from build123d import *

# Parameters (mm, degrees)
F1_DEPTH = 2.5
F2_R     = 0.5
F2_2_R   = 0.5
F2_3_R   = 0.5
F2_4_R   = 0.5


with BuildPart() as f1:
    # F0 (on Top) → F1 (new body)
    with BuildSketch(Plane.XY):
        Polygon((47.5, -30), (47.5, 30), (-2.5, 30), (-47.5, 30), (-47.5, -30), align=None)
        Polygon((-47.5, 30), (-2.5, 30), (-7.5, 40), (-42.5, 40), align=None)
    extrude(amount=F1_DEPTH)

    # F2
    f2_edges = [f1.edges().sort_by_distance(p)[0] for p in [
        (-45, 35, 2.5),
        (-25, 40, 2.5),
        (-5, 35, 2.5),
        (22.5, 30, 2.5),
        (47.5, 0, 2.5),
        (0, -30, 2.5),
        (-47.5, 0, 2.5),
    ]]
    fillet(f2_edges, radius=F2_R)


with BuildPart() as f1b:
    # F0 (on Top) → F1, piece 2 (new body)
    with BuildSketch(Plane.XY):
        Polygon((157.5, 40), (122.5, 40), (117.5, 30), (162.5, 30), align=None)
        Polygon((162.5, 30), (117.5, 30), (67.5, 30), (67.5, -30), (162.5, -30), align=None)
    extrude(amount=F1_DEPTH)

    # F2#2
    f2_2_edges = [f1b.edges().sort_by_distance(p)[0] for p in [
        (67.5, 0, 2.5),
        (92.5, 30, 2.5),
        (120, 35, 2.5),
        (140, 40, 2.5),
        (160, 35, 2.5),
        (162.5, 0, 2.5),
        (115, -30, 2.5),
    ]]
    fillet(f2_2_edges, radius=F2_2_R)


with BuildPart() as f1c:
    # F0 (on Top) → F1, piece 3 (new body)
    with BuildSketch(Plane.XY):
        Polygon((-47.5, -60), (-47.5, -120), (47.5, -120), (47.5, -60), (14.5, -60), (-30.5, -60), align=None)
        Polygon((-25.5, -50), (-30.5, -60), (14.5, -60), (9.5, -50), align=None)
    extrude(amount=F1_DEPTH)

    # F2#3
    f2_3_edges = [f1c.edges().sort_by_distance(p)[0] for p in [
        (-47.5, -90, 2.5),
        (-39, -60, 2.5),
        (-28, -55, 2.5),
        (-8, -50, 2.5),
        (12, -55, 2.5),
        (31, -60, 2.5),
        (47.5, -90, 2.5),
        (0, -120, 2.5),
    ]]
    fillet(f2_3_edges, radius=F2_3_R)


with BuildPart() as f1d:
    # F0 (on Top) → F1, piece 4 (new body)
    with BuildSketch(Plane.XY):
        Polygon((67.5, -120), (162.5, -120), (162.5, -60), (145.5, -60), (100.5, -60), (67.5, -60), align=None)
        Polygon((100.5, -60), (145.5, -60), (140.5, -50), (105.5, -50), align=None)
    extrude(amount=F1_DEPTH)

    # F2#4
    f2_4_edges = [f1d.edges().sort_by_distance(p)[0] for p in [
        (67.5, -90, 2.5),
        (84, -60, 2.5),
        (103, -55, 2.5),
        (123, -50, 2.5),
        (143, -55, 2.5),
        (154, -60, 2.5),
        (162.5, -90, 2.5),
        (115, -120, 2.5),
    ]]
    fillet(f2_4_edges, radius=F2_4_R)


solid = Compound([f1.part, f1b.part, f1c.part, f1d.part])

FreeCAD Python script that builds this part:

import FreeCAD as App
import Part
import Sketcher
from FreeCAD import Vector
Q = App.Units.Quantity


def edges_at(feature, points):
    """Names of the edges that pass closest to the given points."""
    edges = feature.Shape.Edges
    near = lambda p: min(range(len(edges)), key=lambda i: edges[i].distToShape(Part.Vertex(*p))[0])
    return sorted({f"Edge{near(p) + 1}" for p in points})

doc = App.newDocument("Part")
body = doc.addObject("PartDesign::Body", "Body")

# Sketch on XY plane
sketch1 = doc.addObject("Sketcher::SketchObject", "Sketch")
body.addObject(sketch1)
sketch1.AttachmentSupport = (doc.XY_Plane, [""])
sketch1.MapMode = "FlatFace"
sketch1.addGeometry([
    Part.LineSegment(Vector(48, -30, 0), Vector(48, 30, 0)),  # 0
    Part.LineSegment(Vector(48, 30, 0), Vector(-2, 30, 0)),  # 1
    Part.LineSegment(Vector(-2, 30, 0), Vector(-8, 40, 0)),  # 2
    Part.LineSegment(Vector(-8, 40, 0), Vector(-42, 40, 0)),  # 3
    Part.LineSegment(Vector(-42, 40, 0), Vector(-48, 30, 0)),  # 4
    Part.LineSegment(Vector(-48, 30, 0), Vector(-48, -30, 0)),  # 5
    Part.LineSegment(Vector(-48, -30, 0), Vector(48, -30, 0)),  # 6
], False)
sketch1.addConstraint([
    Sketcher.Constraint("Coincident", 0, 2, 1, 1),
    Sketcher.Constraint("Coincident", 1, 2, 2, 1),
    Sketcher.Constraint("Coincident", 2, 2, 3, 1),
    Sketcher.Constraint("Coincident", 3, 2, 4, 1),
    Sketcher.Constraint("Coincident", 4, 2, 5, 1),
    Sketcher.Constraint("Coincident", 5, 2, 6, 1),
    Sketcher.Constraint("Coincident", 6, 2, 0, 1),
    Sketcher.Constraint("Vertical", 0),
    Sketcher.Constraint("Horizontal", 1),
    Sketcher.Constraint("Horizontal", 3),
    Sketcher.Constraint("Vertical", 5),
    Sketcher.Constraint("Horizontal", 6),
    Sketcher.Constraint("Symmetric", 0, 2, 5, 2, -1, 1),
    Sketcher.Constraint("Horizontal", 1, 2, 4, 2),
    Sketcher.Constraint("Equal", 2, 4),
    Sketcher.Constraint("DistanceX", 1, 2, 1, 1, Q("50 mm")),
    Sketcher.Constraint("DistanceX", 3, 2, 3, 1, Q("35 mm")),
    Sketcher.Constraint("DistanceX", 6, 1, 6, 2, Q("95 mm")),
    Sketcher.Constraint("DistanceY", 0, 1, 0, 2, Q("60 mm")),
    Sketcher.Constraint("DistanceY", -1, 1, 2, 2, Q("40 mm")),
])
pad1 = doc.addObject("PartDesign::Pad", "Pad")
body.addObject(pad1)
pad1.Profile = sketch1
pad1.Length = 2.5
doc.recompute()

fillet = doc.addObject("PartDesign::Fillet", "Fillet")
body.addObject(fillet)
fillet.Base = (pad1, edges_at(pad1, [
    (-45, 35, 2.5),
    (-25, 40, 2.5),
    (-5, 35, 2.5),
    (22.5, 30, 2.5),
    (47.5, 0, 2.5),
    (0, -30, 2.5),
    (-47.5, 0, 2.5),
]))
fillet.Radius = 0.5
body2 = doc.addObject("PartDesign::Body", "Body001")

# Sketch on XY plane
sketch2 = doc.addObject("Sketcher::SketchObject", "Sketch001")
body2.addObject(sketch2)
sketch2.AttachmentSupport = (doc.getObject("XY_Plane001"), [""])
sketch2.MapMode = "FlatFace"
sketch2.addGeometry([
    Part.LineSegment(Vector(158, 40, 0), Vector(122, 40, 0)),  # 0
    Part.LineSegment(Vector(122, 40, 0), Vector(118, 30, 0)),  # 1
    Part.LineSegment(Vector(118, 30, 0), Vector(68, 30, 0)),  # 2
    Part.LineSegment(Vector(68, 30, 0), Vector(68, -30, 0)),  # 3
    Part.LineSegment(Vector(68, -30, 0), Vector(162, -30, 0)),  # 4
    Part.LineSegment(Vector(162, -30, 0), Vector(162, 30, 0)),  # 5
    Part.LineSegment(Vector(162, 30, 0), Vector(158, 40, 0)),  # 6
], False)
sketch2.addConstraint([
    Sketcher.Constraint("Coincident", 0, 2, 1, 1),
    Sketcher.Constraint("Coincident", 1, 2, 2, 1),
    Sketcher.Constraint("Coincident", 2, 2, 3, 1),
    Sketcher.Constraint("Coincident", 3, 2, 4, 1),
    Sketcher.Constraint("Coincident", 4, 2, 5, 1),
    Sketcher.Constraint("Coincident", 5, 2, 6, 1),
    Sketcher.Constraint("Coincident", 6, 2, 0, 1),
    Sketcher.Constraint("Horizontal", 0),
    Sketcher.Constraint("Horizontal", 2),
    Sketcher.Constraint("Vertical", 3),
    Sketcher.Constraint("Horizontal", 4),
    Sketcher.Constraint("Vertical", 5),
    Sketcher.Constraint("Horizontal", 2, 2, 5, 2),
    Sketcher.Constraint("Equal", 1, 6),
    Sketcher.Constraint("DistanceX", 0, 2, 0, 1, Q("35 mm")),
    Sketcher.Constraint("DistanceX", 2, 2, 2, 1, Q("50 mm")),
    Sketcher.Constraint("DistanceX", 4, 1, 4, 2, Q("95 mm")),
    Sketcher.Constraint("DistanceY", 3, 2, 3, 1, Q("60 mm")),
    Sketcher.Constraint("DistanceY", -1, 1, 0, 2, Q("40 mm")),
    Sketcher.Constraint("DistanceY", -1, 1, 1, 2, Q("30 mm")),
    Sketcher.Constraint("DistanceX", -1, 1, 0, 2, Q("122.5 mm")),
])
pad2 = doc.addObject("PartDesign::Pad", "Pad001")
body2.addObject(pad2)
pad2.Profile = sketch2
pad2.Length = 2.5
doc.recompute()

fillet2 = doc.addObject("PartDesign::Fillet", "Fillet001")
body2.addObject(fillet2)
fillet2.Base = (pad2, edges_at(pad2, [
    (67.5, 0, 2.5),
    (92.5, 30, 2.5),
    (120, 35, 2.5),
    (140, 40, 2.5),
    (160, 35, 2.5),
    (162.5, 0, 2.5),
    (115, -30, 2.5),
]))
fillet2.Radius = 0.5
body3 = doc.addObject("PartDesign::Body", "Body002")

# Sketch on XY plane
sketch3 = doc.addObject("Sketcher::SketchObject", "Sketch002")
body3.addObject(sketch3)
sketch3.AttachmentSupport = (doc.getObject("XY_Plane002"), [""])
sketch3.MapMode = "FlatFace"
sketch3.addGeometry([
    Part.LineSegment(Vector(-48, -60, 0), Vector(-48, -120, 0)),  # 0
    Part.LineSegment(Vector(-48, -120, 0), Vector(48, -120, 0)),  # 1
    Part.LineSegment(Vector(48, -120, 0), Vector(48, -60, 0)),  # 2
    Part.LineSegment(Vector(48, -60, 0), Vector(14, -60, 0)),  # 3
    Part.LineSegment(Vector(14, -60, 0), Vector(10, -50, 0)),  # 4
    Part.LineSegment(Vector(10, -50, 0), Vector(-26, -50, 0)),  # 5
    Part.LineSegment(Vector(-26, -50, 0), Vector(-30, -60, 0)),  # 6
    Part.LineSegment(Vector(-30, -60, 0), Vector(-48, -60, 0)),  # 7
], False)
sketch3.addConstraint([
    Sketcher.Constraint("Coincident", 0, 2, 1, 1),
    Sketcher.Constraint("Coincident", 1, 2, 2, 1),
    Sketcher.Constraint("Coincident", 2, 2, 3, 1),
    Sketcher.Constraint("Coincident", 3, 2, 4, 1),
    Sketcher.Constraint("Coincident", 4, 2, 5, 1),
    Sketcher.Constraint("Coincident", 5, 2, 6, 1),
    Sketcher.Constraint("Coincident", 6, 2, 7, 1),
    Sketcher.Constraint("Coincident", 7, 2, 0, 1),
    Sketcher.Constraint("Vertical", 0),
    Sketcher.Constraint("Horizontal", 1),
    Sketcher.Constraint("Vertical", 2),
    Sketcher.Constraint("Horizontal", 3),
    Sketcher.Constraint("Horizontal", 5),
    Sketcher.Constraint("Horizontal", 7),
    Sketcher.Constraint("Symmetric", 2, 2, 7, 2, -2),
    Sketcher.Constraint("Equal", 4, 6),
    Sketcher.Constraint("DistanceX", 1, 1, 1, 2, Q("95 mm")),
    Sketcher.Constraint("DistanceX", 3, 2, 3, 1, Q("33 mm")),
    Sketcher.Constraint("DistanceX", 5, 2, 5, 1, Q("35 mm")),
    Sketcher.Constraint("DistanceX", 7, 2, 7, 1, Q("17 mm")),
    Sketcher.Constraint("DistanceY", 0, 2, 0, 1, Q("60 mm")),
    Sketcher.Constraint("DistanceY", 0, 2, -1, 1, Q("120 mm")),
    Sketcher.Constraint("DistanceY", 4, 2, -1, 1, Q("50 mm")),
])
pad3 = doc.addObject("PartDesign::Pad", "Pad002")
body3.addObject(pad3)
pad3.Profile = sketch3
pad3.Length = 2.5
doc.recompute()

fillet3 = doc.addObject("PartDesign::Fillet", "Fillet002")
body3.addObject(fillet3)
fillet3.Base = (pad3, edges_at(pad3, [
    (-47.5, -90, 2.5),
    (-39, -60, 2.5),
    (-28, -55, 2.5),
    (-8, -50, 2.5),
    (12, -55, 2.5),
    (31, -60, 2.5),
    (47.5, -90, 2.5),
    (0, -120, 2.5),
]))
fillet3.Radius = 0.5
body4 = doc.addObject("PartDesign::Body", "Body003")

# Sketch on XY plane
sketch4 = doc.addObject("Sketcher::SketchObject", "Sketch003")
body4.addObject(sketch4)
sketch4.AttachmentSupport = (doc.getObject("XY_Plane003"), [""])
sketch4.MapMode = "FlatFace"
sketch4.addGeometry([
    Part.LineSegment(Vector(68, -120, 0), Vector(162, -120, 0)),  # 0
    Part.LineSegment(Vector(162, -120, 0), Vector(162, -60, 0)),  # 1
    Part.LineSegment(Vector(162, -60, 0), Vector(146, -60, 0)),  # 2
    Part.LineSegment(Vector(146, -60, 0), Vector(140, -50, 0)),  # 3
    Part.LineSegment(Vector(140, -50, 0), Vector(106, -50, 0)),  # 4
    Part.LineSegment(Vector(106, -50, 0), Vector(100, -60, 0)),  # 5
    Part.LineSegment(Vector(100, -60, 0), Vector(68, -60, 0)),  # 6
    Part.LineSegment(Vector(68, -60, 0), Vector(68, -120, 0)),  # 7
], False)
sketch4.addConstraint([
    Sketcher.Constraint("Coincident", 0, 2, 1, 1),
    Sketcher.Constraint("Coincident", 1, 2, 2, 1),
    Sketcher.Constraint("Coincident", 2, 2, 3, 1),
    Sketcher.Constraint("Coincident", 3, 2, 4, 1),
    Sketcher.Constraint("Coincident", 4, 2, 5, 1),
    Sketcher.Constraint("Coincident", 5, 2, 6, 1),
    Sketcher.Constraint("Coincident", 6, 2, 7, 1),
    Sketcher.Constraint("Coincident", 7, 2, 0, 1),
    Sketcher.Constraint("Horizontal", 0),
    Sketcher.Constraint("Vertical", 1),
    Sketcher.Constraint("Horizontal", 2),
    Sketcher.Constraint("Horizontal", 4),
    Sketcher.Constraint("Horizontal", 6),
    Sketcher.Constraint("Vertical", 7),
    Sketcher.Constraint("Horizontal", 2, 2, 5, 2),
    Sketcher.Constraint("Equal", 3, 5),
    Sketcher.Constraint("DistanceX", 0, 1, 0, 2, Q("95 mm")),
    Sketcher.Constraint("DistanceX", 2, 2, 2, 1, Q("17 mm")),
    Sketcher.Constraint("DistanceX", 4, 2, 4, 1, Q("35 mm")),
    Sketcher.Constraint("DistanceX", 6, 2, 6, 1, Q("33 mm")),
    Sketcher.Constraint("DistanceY", 1, 1, 1, 2, Q("60 mm")),
    Sketcher.Constraint("DistanceY", 0, 2, -1, 1, Q("120 mm")),
    Sketcher.Constraint("DistanceY", 3, 2, -1, 1, Q("50 mm")),
    Sketcher.Constraint("DistanceX", -1, 1, 0, 2, Q("162.5 mm")),
])
pad4 = doc.addObject("PartDesign::Pad", "Pad003")
body4.addObject(pad4)
pad4.Profile = sketch4
pad4.Length = 2.5
doc.recompute()

fillet4 = doc.addObject("PartDesign::Fillet", "Fillet003")
body4.addObject(fillet4)
fillet4.Base = (pad4, edges_at(pad4, [
    (67.5, -90, 2.5),
    (84, -60, 2.5),
    (103, -55, 2.5),
    (123, -50, 2.5),
    (143, -55, 2.5),
    (154, -60, 2.5),
    (162.5, -90, 2.5),
    (115, -120, 2.5),
]))
fillet4.Radius = 0.5

doc.recompute()
